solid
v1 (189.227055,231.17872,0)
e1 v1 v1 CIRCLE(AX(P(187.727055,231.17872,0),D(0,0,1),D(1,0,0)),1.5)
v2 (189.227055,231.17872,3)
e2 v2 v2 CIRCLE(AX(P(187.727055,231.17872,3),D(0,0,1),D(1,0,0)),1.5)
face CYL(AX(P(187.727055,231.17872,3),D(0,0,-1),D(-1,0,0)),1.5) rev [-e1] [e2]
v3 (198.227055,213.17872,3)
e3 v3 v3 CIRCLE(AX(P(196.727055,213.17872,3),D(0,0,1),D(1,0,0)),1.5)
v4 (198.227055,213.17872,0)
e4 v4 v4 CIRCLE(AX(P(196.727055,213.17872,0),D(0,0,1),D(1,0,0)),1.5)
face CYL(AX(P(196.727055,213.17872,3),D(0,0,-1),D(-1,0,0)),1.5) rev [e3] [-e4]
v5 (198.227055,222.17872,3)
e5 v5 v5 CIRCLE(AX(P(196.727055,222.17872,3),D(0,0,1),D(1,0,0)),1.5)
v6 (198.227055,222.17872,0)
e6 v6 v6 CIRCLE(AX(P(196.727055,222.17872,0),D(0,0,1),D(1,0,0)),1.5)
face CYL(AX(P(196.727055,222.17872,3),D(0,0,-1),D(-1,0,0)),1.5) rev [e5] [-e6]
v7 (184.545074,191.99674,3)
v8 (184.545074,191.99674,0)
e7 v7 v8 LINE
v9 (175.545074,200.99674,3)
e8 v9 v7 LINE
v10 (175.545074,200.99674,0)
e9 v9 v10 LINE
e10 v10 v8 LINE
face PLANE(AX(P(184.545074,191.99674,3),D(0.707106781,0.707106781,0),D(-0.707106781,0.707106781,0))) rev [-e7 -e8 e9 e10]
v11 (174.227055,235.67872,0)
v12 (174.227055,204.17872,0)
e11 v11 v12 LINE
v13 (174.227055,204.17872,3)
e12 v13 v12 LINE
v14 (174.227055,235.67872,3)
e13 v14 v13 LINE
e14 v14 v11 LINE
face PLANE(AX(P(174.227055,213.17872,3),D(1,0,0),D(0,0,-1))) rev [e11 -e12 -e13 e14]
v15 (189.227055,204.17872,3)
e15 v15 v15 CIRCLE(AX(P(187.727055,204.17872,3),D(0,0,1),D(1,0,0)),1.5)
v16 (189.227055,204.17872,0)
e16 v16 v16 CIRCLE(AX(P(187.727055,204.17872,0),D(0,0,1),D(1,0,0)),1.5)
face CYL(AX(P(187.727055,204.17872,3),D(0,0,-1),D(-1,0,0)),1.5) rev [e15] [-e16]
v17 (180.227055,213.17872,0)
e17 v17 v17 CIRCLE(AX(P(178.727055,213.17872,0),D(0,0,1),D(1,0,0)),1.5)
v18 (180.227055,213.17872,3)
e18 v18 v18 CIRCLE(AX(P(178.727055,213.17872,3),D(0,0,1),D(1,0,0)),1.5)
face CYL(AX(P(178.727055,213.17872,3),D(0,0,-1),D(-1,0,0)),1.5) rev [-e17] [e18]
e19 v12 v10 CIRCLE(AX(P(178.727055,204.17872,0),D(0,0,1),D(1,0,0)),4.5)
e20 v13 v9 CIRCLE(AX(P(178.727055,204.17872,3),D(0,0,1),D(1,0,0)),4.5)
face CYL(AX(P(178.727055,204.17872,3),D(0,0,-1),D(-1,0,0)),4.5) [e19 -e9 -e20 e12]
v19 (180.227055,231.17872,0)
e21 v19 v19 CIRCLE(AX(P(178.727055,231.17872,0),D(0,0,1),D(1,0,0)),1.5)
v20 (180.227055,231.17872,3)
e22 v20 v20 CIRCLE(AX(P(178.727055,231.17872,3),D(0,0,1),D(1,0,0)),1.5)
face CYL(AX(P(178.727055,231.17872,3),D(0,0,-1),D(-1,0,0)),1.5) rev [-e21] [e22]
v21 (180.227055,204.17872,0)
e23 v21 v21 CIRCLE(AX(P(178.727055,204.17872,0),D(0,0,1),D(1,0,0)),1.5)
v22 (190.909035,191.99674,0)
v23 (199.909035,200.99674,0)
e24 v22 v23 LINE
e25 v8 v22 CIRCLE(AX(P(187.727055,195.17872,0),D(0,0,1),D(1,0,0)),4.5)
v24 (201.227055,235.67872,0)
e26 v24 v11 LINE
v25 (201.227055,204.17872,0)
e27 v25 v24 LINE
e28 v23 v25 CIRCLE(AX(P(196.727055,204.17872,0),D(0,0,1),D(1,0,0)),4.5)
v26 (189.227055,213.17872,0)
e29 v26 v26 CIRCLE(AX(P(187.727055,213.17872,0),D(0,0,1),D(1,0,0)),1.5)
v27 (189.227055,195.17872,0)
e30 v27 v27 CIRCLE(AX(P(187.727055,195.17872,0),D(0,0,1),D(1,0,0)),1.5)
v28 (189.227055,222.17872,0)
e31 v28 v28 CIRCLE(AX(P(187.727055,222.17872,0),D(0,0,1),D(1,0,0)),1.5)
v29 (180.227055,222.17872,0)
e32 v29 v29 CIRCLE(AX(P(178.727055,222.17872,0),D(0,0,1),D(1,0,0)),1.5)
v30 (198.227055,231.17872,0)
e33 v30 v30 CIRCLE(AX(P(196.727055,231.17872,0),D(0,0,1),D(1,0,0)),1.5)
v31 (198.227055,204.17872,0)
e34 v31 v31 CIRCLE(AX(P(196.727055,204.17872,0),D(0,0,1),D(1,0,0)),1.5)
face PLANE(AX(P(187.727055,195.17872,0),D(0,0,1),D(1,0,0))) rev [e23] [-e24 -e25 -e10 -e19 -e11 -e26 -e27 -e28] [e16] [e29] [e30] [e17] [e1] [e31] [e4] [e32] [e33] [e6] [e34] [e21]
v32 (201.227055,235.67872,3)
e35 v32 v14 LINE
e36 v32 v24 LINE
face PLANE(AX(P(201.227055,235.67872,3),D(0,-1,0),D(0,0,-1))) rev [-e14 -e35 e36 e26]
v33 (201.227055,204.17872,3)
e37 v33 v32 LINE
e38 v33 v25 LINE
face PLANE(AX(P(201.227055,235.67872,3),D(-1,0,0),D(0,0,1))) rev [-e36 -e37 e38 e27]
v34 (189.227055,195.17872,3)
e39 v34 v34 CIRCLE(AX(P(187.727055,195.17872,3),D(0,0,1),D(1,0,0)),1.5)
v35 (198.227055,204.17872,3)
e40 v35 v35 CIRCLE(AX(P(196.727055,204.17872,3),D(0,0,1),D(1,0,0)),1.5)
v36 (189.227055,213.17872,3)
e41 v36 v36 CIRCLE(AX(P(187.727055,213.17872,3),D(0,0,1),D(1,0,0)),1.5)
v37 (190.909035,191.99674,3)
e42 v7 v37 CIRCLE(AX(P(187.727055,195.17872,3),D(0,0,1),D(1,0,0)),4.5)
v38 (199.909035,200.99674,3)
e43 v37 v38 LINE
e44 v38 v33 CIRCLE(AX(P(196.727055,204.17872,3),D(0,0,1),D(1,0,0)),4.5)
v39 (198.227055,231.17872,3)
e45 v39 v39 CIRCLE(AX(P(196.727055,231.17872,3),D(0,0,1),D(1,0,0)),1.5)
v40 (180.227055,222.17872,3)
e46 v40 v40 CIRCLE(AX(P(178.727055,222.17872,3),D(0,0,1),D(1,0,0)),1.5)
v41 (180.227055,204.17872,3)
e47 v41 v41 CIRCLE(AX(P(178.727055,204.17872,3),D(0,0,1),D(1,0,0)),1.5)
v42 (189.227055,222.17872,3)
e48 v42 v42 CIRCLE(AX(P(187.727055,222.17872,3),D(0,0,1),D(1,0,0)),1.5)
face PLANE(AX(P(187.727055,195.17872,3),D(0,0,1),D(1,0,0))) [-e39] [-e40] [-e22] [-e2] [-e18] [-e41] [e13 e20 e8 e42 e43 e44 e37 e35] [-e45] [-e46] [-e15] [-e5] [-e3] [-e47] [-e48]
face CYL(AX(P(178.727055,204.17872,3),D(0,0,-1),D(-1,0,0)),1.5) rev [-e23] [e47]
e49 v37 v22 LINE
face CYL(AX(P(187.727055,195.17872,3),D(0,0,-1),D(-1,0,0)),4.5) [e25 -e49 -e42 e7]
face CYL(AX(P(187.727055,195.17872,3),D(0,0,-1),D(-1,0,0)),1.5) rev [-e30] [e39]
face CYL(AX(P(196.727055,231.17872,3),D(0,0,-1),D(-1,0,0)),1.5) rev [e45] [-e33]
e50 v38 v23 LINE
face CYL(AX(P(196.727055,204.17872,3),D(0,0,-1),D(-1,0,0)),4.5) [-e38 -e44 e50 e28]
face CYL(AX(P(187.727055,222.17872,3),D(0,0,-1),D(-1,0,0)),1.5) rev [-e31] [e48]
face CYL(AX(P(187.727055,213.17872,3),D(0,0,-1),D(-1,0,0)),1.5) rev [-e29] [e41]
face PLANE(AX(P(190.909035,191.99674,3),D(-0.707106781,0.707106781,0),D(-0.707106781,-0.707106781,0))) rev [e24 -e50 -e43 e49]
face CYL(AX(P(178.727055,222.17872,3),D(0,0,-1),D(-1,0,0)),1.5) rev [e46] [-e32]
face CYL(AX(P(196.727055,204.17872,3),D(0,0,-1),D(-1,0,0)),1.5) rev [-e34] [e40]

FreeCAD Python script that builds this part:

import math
import FreeCAD as App
import Part
import Sketcher
Q = App.Units.Quantity

doc = App.newDocument("Part")
body = doc.addObject("PartDesign::Body", "Body")

sketch1 = body.newObject("Sketcher::SketchObject", "Sketch")
sketch1.AttachmentSupport = (doc.getObject("XY_Plane"), [""])
sketch1.MapMode = "FlatFace"
sketch1.addGeometry(Part.ArcOfCircle(Part.Circle(App.Vector(178.7, 204.2, 0), App.Vector(0, 0, 1), 4.5), math.radians(180), math.radians(225)), False)
sketch1.addGeometry(Part.LineSegment(App.Vector(175.5, 201, 0), App.Vector(184.5, 192, 0)), False)
sketch1.addGeometry(Part.ArcOfCircle(Part.Circle(App.Vector(187.7, 195.2, 0), App.Vector(0, 0, 1), 4.5), math.radians(-135), math.radians(-45)), False)
sketch1.addGeometry(Part.LineSegment(App.Vector(190.9, 192, 0), App.Vector(199.9, 201, 0)), False)
sketch1.addGeometry(Part.ArcOfCircle(Part.Circle(App.Vector(196.7, 204.2, 0), App.Vector(0, 0, 1), 4.5), math.radians(-45), math.radians(0)), False)
sketch1.addGeometry(Part.LineSegment(App.Vector(201.2, 204.2, 0), App.Vector(201.2, 235.7, 0)), False)
sketch1.addGeometry(Part.LineSegment(App.Vector(201.2, 235.7, 0), App.Vector(174.2, 235.7, 0)), False)
sketch1.addGeometry(Part.LineSegment(App.Vector(174.2, 235.7, 0), App.Vector(174.2, 204.2, 0)), False)
sketch1.addGeometry(Part.Circle(App.Vector(178.7, 204.2, 0), App.Vector(0, 0, 1), 1.5), False)
sketch1.addGeometry(Part.Circle(App.Vector(187.7, 195.2, 0), App.Vector(0, 0, 1), 1.5), False)
sketch1.addGeometry(Part.Circle(App.Vector(187.7, 204.2, 0), App.Vector(0, 0, 1), 1.5), False)
sketch1.addGeometry(Part.Circle(App.Vector(196.7, 204.2, 0), App.Vector(0, 0, 1), 1.5), False)
sketch1.addGeometry(Part.Circle(App.Vector(178.7, 213.2, 0), App.Vector(0, 0, 1), 1.5), False)
sketch1.addGeometry(Part.Circle(App.Vector(178.7, 222.2, 0), App.Vector(0, 0, 1), 1.5), False)
sketch1.addGeometry(Part.Circle(App.Vector(178.7, 231.2, 0), App.Vector(0, 0, 1), 1.5), False)
sketch1.addGeometry(Part.Circle(App.Vector(187.7, 213.2, 0), App.Vector(0, 0, 1), 1.5), False)
sketch1.addGeometry(Part.Circle(App.Vector(187.7, 222.2, 0), App.Vector(0, 0, 1), 1.5), False)
sketch1.addGeometry(Part.Circle(App.Vector(196.7, 213.2, 0), App.Vector(0, 0, 1), 1.5), False)
sketch1.addGeometry(Part.Circle(App.Vector(196.7, 222.2, 0), App.Vector(0, 0, 1), 1.5), False)
sketch1.addGeometry(Part.Circle(App.Vector(187.7, 231.2, 0), App.Vector(0, 0, 1), 1.5), False)
sketch1.addGeometry(Part.Circle(App.Vector(196.7, 231.2, 0), App.Vector(0, 0, 1), 1.5), False)
sketch1.addConstraint(Sketcher.Constraint("Tangent", 0, 2, 1, 1))
sketch1.addConstraint(Sketcher.Constraint("Tangent", 1, 2, 2, 1))
sketch1.addConstraint(Sketcher.Constraint("Tangent", 2, 2, 3, 1))
sketch1.addConstraint(Sketcher.Constraint("Tangent", 3, 2, 4, 1))
sketch1.addConstraint(Sketcher.Constraint("Tangent", 4, 2, 5, 1))
sketch1.addConstraint(Sketcher.Constraint("Coincident", 5, 2, 6, 1))
sketch1.addConstraint(Sketcher.Constraint("Coincident", 6, 2, 7, 1))
sketch1.addConstraint(Sketcher.Constraint("Tangent", 7, 2, 0, 1))
sketch1.addConstraint(Sketcher.Constraint("Vertical", 5))
sketch1.addConstraint(Sketcher.Constraint("Horizontal", 6))
sketch1.addConstraint(Sketcher.Constraint("Vertical", 7))
sketch1.addConstraint(Sketcher.Constraint("Coincident", 8, 3, 0, 3))
sketch1.addConstraint(Sketcher.Constraint("Coincident", 9, 3, 2, 3))
sketch1.addConstraint(Sketcher.Constraint("Coincident", 11, 3, 4, 3))
sketch1.addConstraint(Sketcher.Constraint("Equal", 0, 2))
sketch1.addConstraint(Sketcher.Constraint("Equal", 2, 4))
sketch1.addConstraint(Sketcher.Constraint("Equal", 8, 9))
sketch1.addConstraint(Sketcher.Constraint("Equal", 9, 10))
sketch1.addConstraint(Sketcher.Constraint("Equal", 10, 11))
sketch1.addConstraint(Sketcher.Constraint("Equal", 11, 12))
sketch1.addConstraint(Sketcher.Constraint("Equal", 12, 13))
sketch1.addConstraint(Sketcher.Constraint("Equal", 13, 14))
sketch1.addConstraint(Sketcher.Constraint("Equal", 14, 15))
sketch1.addConstraint(Sketcher.Constraint("Equal", 15, 16))
sketch1.addConstraint(Sketcher.Constraint("Equal", 16, 17))
sketch1.addConstraint(Sketcher.Constraint("Equal", 17, 18))
sketch1.addConstraint(Sketcher.Constraint("Equal", 18, 19))
sketch1.addConstraint(Sketcher.Constraint("Equal", 19, 20))
sketch1.addConstraint(Sketcher.Constraint("Perpendicular", 1, 3))
sketch1.addConstraint(Sketcher.Constraint("Horizontal", 0, 3, 4, 3))
sketch1.addConstraint(Sketcher.Constraint("Horizontal", 8, 3, 10, 3))
sketch1.addConstraint(Sketcher.Constraint("Horizontal", 12, 3, 15, 3))
sketch1.addConstraint(Sketcher.Constraint("Horizontal", 13, 3, 16, 3))
sketch1.addConstraint(Sketcher.Constraint("Horizontal", 15, 3, 17, 3))
sketch1.addConstraint(Sketcher.Constraint("Horizontal", 16, 3, 18, 3))
sketch1.addConstraint(Sketcher.Constraint("Horizontal", 14, 3, 19, 3))
sketch1.addConstraint(Sketcher.Constraint("Horizontal", 19, 3, 20, 3))
sketch1.addConstraint(Sketcher.Constraint("Horizontal", 1, 2, 2, 2))
sketch1.addConstraint(Sketcher.Constraint("Vertical", 9, 3, 10, 3))
sketch1.addConstraint(Sketcher.Constraint("Vertical", 8, 3, 12, 3))
sketch1.addConstraint(Sketcher.Constraint("Vertical", 12, 3, 13, 3))
sketch1.addConstraint(Sketcher.Constraint("Vertical", 13, 3, 14, 3))
sketch1.addConstraint(Sketcher.Constraint("Vertical", 10, 3, 15, 3))
sketch1.addConstraint(Sketcher.Constraint("Vertical", 15, 3, 16, 3))
sketch1.addConstraint(Sketcher.Constraint("Vertical", 11, 3, 17, 3))
sketch1.addConstraint(Sketcher.Constraint("Vertical", 17, 3, 18, 3))
sketch1.addConstraint(Sketcher.Constraint("Vertical", 16, 3, 19, 3))
sketch1.addConstraint(Sketcher.Constraint("Vertical", 18, 3, 20, 3))
sketch1.addConstraint(Sketcher.Constraint("Diameter", 8, Q("3 mm")))
sketch1.addConstraint(Sketcher.Constraint("Radius", 0, Q("4.5 mm")))
sketch1.addConstraint(Sketcher.Constraint("DistanceX", 6, 2, 6, 1, Q("27 mm")))
sketch1.addConstraint(Sketcher.Constraint("DistanceY", 5, 1, 5, 2, Q("31.5 mm")))
sketch1.addConstraint(Sketcher.Constraint("DistanceY", 8, 3, 12, 3, Q("9 mm")))
sketch1.addConstraint(Sketcher.Constraint("DistanceY", 12, 3, 13, 3, Q("9 mm")))
sketch1.addConstraint(Sketcher.Constraint("DistanceY", 13, 3, 14, 3, Q("9 mm")))
sketch1.addConstraint(Sketcher.Constraint("DistanceY", -1, 1, 0, 3, Q("204.17872 mm")))
sketch1.addConstraint(Sketcher.Constraint("DistanceX", -1, 1, 0, 3, Q("178.727055 mm")))
pad1 = body.newObject("PartDesign::Pad", "Pad")
pad1.Profile = sketch1
pad1.Length = 3

doc.recompute()
